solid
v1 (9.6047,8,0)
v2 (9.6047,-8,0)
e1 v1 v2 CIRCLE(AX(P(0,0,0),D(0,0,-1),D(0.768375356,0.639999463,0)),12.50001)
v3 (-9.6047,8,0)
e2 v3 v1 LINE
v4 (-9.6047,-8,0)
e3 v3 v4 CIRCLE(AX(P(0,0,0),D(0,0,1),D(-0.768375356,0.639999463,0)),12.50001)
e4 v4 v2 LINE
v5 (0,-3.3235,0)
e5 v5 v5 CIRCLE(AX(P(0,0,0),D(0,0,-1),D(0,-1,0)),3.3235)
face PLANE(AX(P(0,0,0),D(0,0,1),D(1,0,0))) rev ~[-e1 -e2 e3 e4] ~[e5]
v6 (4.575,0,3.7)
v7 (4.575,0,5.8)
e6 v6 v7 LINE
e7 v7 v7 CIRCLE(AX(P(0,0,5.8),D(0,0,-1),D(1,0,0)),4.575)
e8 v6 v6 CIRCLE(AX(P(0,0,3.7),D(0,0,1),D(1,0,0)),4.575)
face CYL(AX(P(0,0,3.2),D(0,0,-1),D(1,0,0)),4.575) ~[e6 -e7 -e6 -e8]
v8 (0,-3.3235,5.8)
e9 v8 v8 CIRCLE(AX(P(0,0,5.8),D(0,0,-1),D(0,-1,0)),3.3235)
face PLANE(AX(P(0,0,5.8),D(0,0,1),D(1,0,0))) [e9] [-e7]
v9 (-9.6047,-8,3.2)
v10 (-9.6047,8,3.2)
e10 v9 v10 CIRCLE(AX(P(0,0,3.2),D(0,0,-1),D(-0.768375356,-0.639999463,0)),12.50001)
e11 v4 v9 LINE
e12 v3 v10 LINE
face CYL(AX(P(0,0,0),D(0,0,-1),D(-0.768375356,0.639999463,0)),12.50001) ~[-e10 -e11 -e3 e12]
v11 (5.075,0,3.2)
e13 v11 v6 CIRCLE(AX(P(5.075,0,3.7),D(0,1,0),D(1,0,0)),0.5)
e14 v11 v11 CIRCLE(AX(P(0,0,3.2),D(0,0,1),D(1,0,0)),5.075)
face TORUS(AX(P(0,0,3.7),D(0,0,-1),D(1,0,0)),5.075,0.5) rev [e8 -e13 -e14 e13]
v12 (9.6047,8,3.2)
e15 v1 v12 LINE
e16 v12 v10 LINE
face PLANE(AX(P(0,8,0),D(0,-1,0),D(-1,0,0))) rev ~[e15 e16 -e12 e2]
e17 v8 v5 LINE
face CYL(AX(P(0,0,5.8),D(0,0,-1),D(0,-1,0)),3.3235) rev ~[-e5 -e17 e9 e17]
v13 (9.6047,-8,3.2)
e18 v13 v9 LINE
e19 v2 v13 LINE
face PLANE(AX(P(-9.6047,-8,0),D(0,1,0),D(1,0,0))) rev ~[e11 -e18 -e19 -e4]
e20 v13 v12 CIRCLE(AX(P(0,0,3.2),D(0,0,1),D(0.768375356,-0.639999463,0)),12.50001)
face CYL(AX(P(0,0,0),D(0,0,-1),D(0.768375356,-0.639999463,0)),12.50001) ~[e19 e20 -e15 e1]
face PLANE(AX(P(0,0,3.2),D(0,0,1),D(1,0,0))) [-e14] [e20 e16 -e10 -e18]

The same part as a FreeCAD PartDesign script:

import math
import FreeCAD as App
import Part
import Sketcher
Q = App.Units.Quantity


def edges_at(feature, points):
    """Names of the edges that pass closest to the given points."""
    edges = feature.Shape.Edges
    near = lambda p: min(range(len(edges)), key=lambda i: edges[i].distToShape(Part.Vertex(*p))[0])
    return sorted({f"Edge{near(p) + 1}" for p in points})

doc = App.newDocument("Part")
params = doc.addObject("Spreadsheet::Sheet", "Params")
for row, (alias, value) in enumerate([
    ("sketch1_radius", "12.5 mm"),
    ("pad1_length", "3.2 mm"),
    ("sketch2_diameter", "9.15 mm"),
    ("pad2_length", "2.6 mm"),
    ("hole_diameter", "6.647 mm"),
    ("fillet_radius", "0.5 mm"),
], start=1):
    params.set(f"A{row}", alias)
    params.set(f"B{row}", "=" + value)
    params.setAlias(f"B{row}", alias)

body = doc.addObject("PartDesign::Body", "Body")

sketch1 = body.newObject("Sketcher::SketchObject", "Sketch")
sketch1.AttachmentSupport = (doc.getObject("XY_Plane"), [""])
sketch1.MapMode = "FlatFace"
sketch1.addGeometry([
    Part.LineSegment(App.Vector(-10, -8, 0), App.Vector(10, -8, 0)),
    Part.ArcOfCircle(Part.Circle(App.Vector(0, 0, 0), App.Vector(0, 0, 1), 13), math.radians(-40), math.radians(40)),
    Part.LineSegment(App.Vector(10, 8, 0), App.Vector(-10, 8, 0)),
    Part.ArcOfCircle(Part.Circle(App.Vector(0, 0, 0), App.Vector(0, 0, 1), 13), math.radians(140), math.radians(220)),
], False)
sketch1.addConstraint([
    Sketcher.Constraint("Coincident", 0, 2, 1, 1),
    Sketcher.Constraint("Coincident", 1, 2, 2, 1),
    Sketcher.Constraint("Coincident", 2, 2, 3, 1),
    Sketcher.Constraint("Coincident", 3, 2, 0, 1),
    Sketcher.Constraint("Horizontal", 0),
    Sketcher.Constraint("Horizontal", 2),
    Sketcher.Constraint("Coincident", 1, 3, -1, 1),
    Sketcher.Constraint("Coincident", 3, 3, -1, 1),
    Sketcher.Constraint("Equal", 1, 3),
    Sketcher.Constraint("Vertical", 0, 2, 1, 2),
    Sketcher.Constraint("Radius", 1, Q("12.5 mm")),
    Sketcher.Constraint("DistanceY", 0, 2, -1, 1, Q("8 mm")),
])
sketch1.setExpression("Constraints[10]", "Params.sketch1_radius")
pad1 = body.newObject("PartDesign::Pad", "Pad")
pad1.Profile = sketch1
pad1.setExpression("Length", "Params.pad1_length")

sketch2 = body.newObject("Sketcher::SketchObject", "Sketch001")
sketch2.AttachmentSupport = (doc.getObject("XY_Plane"), [""])
sketch2.MapMode = "FlatFace"
sketch2.AttachmentOffset = App.Placement(App.Vector(0, 0, 3.2), App.Rotation())
sketch2.addGeometry(Part.Circle(App.Vector(0, 0, 0), App.Vector(0, 0, 1), 4.6), False)
sketch2.addConstraint([
    Sketcher.Constraint("Coincident", 0, 3, -1, 1),
    Sketcher.Constraint("Diameter", 0, Q("9.15 mm")),
])
sketch2.setExpression("Constraints[1]", "Params.sketch2_diameter")
pad2 = body.newObject("PartDesign::Pad", "Pad001")
pad2.Profile = sketch2
pad2.setExpression("Length", "Params.pad2_length")

sketch3 = body.newObject("Sketcher::SketchObject", "Sketch002")
sketch3.AttachmentSupport = (doc.getObject("XY_Plane"), [""])
sketch3.MapMode = "FlatFace"
sketch3.AttachmentOffset = App.Placement(App.Vector(0, 0, 5.8), App.Rotation())
sketch3.addGeometry(Part.Circle(App.Vector(0, 0, 0), App.Vector(0, 0, 1), 3.3), False)
sketch3.addConstraint([
    Sketcher.Constraint("Coincident", 0, 3, -1, 1),
    Sketcher.Constraint("Diameter", 0, Q("6.647 mm")),
])
doc.recompute()
hole = body.newObject("PartDesign::Hole", "Hole")
hole.Profile = sketch3
hole.ThreadType = "None"
hole.setExpression("Diameter", "Params.hole_diameter")
hole.DepthType = "ThroughAll"
doc.recompute()

fillet = body.newObject("PartDesign::Fillet", "Fillet")
fillet.Base = (hole, edges_at(hole, [(-4.575, 0, 3.2)]))
fillet.setExpression("Radius", "Params.fillet_radius")

doc.recompute()
